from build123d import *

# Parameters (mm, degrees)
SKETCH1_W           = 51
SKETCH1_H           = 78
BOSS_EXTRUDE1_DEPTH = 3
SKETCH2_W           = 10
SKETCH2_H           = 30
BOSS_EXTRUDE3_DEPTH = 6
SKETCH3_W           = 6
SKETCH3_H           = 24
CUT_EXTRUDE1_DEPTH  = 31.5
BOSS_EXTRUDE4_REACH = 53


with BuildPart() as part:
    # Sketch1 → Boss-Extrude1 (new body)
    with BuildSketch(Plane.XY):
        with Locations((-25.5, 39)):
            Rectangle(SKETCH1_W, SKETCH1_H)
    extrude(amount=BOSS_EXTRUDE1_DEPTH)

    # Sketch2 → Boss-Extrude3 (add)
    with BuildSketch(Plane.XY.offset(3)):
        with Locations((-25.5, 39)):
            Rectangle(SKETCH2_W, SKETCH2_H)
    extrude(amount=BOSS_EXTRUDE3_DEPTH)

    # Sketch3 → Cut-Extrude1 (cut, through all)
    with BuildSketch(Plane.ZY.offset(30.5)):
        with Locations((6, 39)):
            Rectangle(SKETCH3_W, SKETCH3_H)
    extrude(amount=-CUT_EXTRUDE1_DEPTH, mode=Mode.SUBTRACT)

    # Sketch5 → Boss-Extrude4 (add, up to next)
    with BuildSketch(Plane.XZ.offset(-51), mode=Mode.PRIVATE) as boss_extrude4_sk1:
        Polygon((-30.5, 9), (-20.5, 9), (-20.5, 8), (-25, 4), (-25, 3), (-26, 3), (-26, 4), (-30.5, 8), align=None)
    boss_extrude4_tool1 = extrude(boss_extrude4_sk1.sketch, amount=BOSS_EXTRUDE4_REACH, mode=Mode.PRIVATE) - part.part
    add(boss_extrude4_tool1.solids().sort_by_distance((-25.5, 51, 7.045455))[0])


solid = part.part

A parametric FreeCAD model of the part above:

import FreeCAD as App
import Part
import Sketcher

V = App.Vector
Q = App.Units.Quantity

doc = App.newDocument("Part")
body = doc.addObject("PartDesign::Body", "Body")

sketch1 = body.newObject("Sketcher::SketchObject", "Sketch")
sketch1.AttachmentSupport = (doc.getObject("XY_Plane"), [""])
sketch1.MapMode = "FlatFace"
sketch1.addGeometry([
    Part.LineSegment(V(-51, 78, 0), V(-51, 0, 0)),
    Part.LineSegment(V(-51, 0, 0), V(0, 0, 0)),
    Part.LineSegment(V(0, 0, 0), V(0, 78, 0)),
    Part.LineSegment(V(0, 78, 0), V(-51, 78, 0)),
], False)
sketch1.addConstraint([
    Sketcher.Constraint("Coincident", 0, 2, 1, 1),
    Sketcher.Constraint("Coincident", 1, 2, 2, 1),
    Sketcher.Constraint("Coincident", 2, 2, 3, 1),
    Sketcher.Constraint("Coincident", 3, 2, 0, 1),
    Sketcher.Constraint("Vertical", 0),
    Sketcher.Constraint("Horizontal", 1),
    Sketcher.Constraint("Vertical", 2),
    Sketcher.Constraint("Horizontal", 3),
    Sketcher.Constraint("Coincident", 1, 2, -1, 1),
    Sketcher.Constraint("DistanceX", 1, 1, 1, 2, Q("51 mm")),
    Sketcher.Constraint("DistanceY", 0, 2, 0, 1, Q("78 mm")),
])
pad1 = body.newObject("PartDesign::Pad", "Pad")
pad1.Profile = sketch1
pad1.Length = 3

sketch2 = body.newObject("Sketcher::SketchObject", "Sketch001")
sketch2.AttachmentSupport = (doc.getObject("XY_Plane"), [""])
sketch2.MapMode = "FlatFace"
sketch2.AttachmentOffset = App.Placement(V(0, 0, 3), App.Rotation())
sketch2.addGeometry([
    Part.LineSegment(V(-30, 54, 0), V(-30, 24, 0)),
    Part.LineSegment(V(-30, 24, 0), V(-20, 24, 0)),
    Part.LineSegment(V(-20, 24, 0), V(-20, 54, 0)),
    Part.LineSegment(V(-20, 54, 0), V(-30, 54, 0)),
], False)
sketch2.addConstraint([
    Sketcher.Constraint("Coincident", 0, 2, 1, 1),
    Sketcher.Constraint("Coincident", 1, 2, 2, 1),
    Sketcher.Constraint("Coincident", 2, 2, 3, 1),
    Sketcher.Constraint("Coincident", 3, 2, 0, 1),
    Sketcher.Constraint("Vertical", 0),
    Sketcher.Constraint("Horizontal", 1),
    Sketcher.Constraint("Vertical", 2),
    Sketcher.Constraint("Horizontal", 3),
    Sketcher.Constraint("DistanceX", 1, 1, 1, 2, Q("10 mm")),
    Sketcher.Constraint("DistanceY", 0, 2, 0, 1, Q("30 mm")),
    Sketcher.Constraint("DistanceY", -1, 1, 0, 2, Q("24 mm")),
    Sketcher.Constraint("DistanceX", 0, 2, -1, 1, Q("30.5 mm")),
])
pad2 = body.newObject("PartDesign::Pad", "Pad001")
pad2.Profile = sketch2
pad2.Length = 6

sketch3 = body.newObject("Sketcher::SketchObject", "Sketch002")
sketch3.AttachmentSupport = (doc.getObject("YZ_Plane"), [""])
sketch3.MapMode = "FlatFace"
sketch3.AttachmentOffset = App.Placement(V(0, 0, -30.5), App.Rotation())
sketch3.addGeometry([
    Part.LineSegment(V(51, 3, 0), V(27, 3, 0)),
    Part.LineSegment(V(27, 3, 0), V(27, 9, 0)),
    Part.LineSegment(V(27, 9, 0), V(51, 9, 0)),
    Part.LineSegment(V(51, 9, 0), V(51, 3, 0)),
], False)
sketch3.addConstraint([
    Sketcher.Constraint("Coincident", 0, 2, 1, 1),
    Sketcher.Constraint("Coincident", 1, 2, 2, 1),
    Sketcher.Constraint("Coincident", 2, 2, 3, 1),
    Sketcher.Constraint("Coincident", 3, 2, 0, 1),
    Sketcher.Constraint("Horizontal", 0),
    Sketcher.Constraint("Vertical", 1),
    Sketcher.Constraint("Horizontal", 2),
    Sketcher.Constraint("Vertical", 3),
    Sketcher.Constraint("DistanceX", 0, 2, 0, 1, Q("24 mm")),
    Sketcher.Constraint("DistanceY", 1, 1, 1, 2, Q("6 mm")),
    Sketcher.Constraint("DistanceX", -1, 1, 0, 2, Q("27 mm")),
    Sketcher.Constraint("DistanceY", -1, 1, 0, 2, Q("3 mm")),
])
pocket1 = body.newObject("PartDesign::Pocket", "Pocket")
pocket1.Profile = sketch3
pocket1.Type = "ThroughAll"
pocket1.Reversed = True

sketch4 = body.newObject("Sketcher::SketchObject", "Sketch003")
sketch4.AttachmentSupport = (doc.getObject("XZ_Plane"), [""])
sketch4.MapMode = "FlatFace"
sketch4.AttachmentOffset = App.Placement(V(0, 0, -51), App.Rotation())
sketch4.addGeometry([
    Part.LineSegment(V(-20.5, 9, 0), V(-30.5, 9, 0)),
    Part.LineSegment(V(-30.5, 9, 0), V(-30.5, 8, 0)),
    Part.LineSegment(V(-30.5, 8, 0), V(-26, 4, 0)),
    Part.LineSegment(V(-26, 4, 0), V(-26, 3, 0)),
    Part.LineSegment(V(-26, 3, 0), V(-25, 3, 0)),
    Part.LineSegment(V(-25, 3, 0), V(-25, 4, 0)),
    Part.LineSegment(V(-25, 4, 0), V(-20.5, 8, 0)),
    Part.LineSegment(V(-20.5, 8, 0), V(-20.5, 9, 0)),
], False)
sketch4.addConstraint([
    Sketcher.Constraint("Coincident", 0, 2, 1, 1),
    Sketcher.Constraint("Coincident", 1, 2, 2, 1),
    Sketcher.Constraint("Coincident", 2, 2, 3, 1),
    Sketcher.Constraint("Coincident", 3, 2, 4, 1),
    Sketcher.Constraint("Coincident", 4, 2, 5, 1),
    Sketcher.Constraint("Coincident", 5, 2, 6, 1),
    Sketcher.Constraint("Coincident", 6, 2, 7, 1),
    Sketcher.Constraint("Coincident", 7, 2, 0, 1),
    Sketcher.Constraint("Horizontal", 0),
    Sketcher.Constraint("Vertical", 1),
    Sketcher.Constraint("Vertical", 3),
    Sketcher.Constraint("Horizontal", 4),
    Sketcher.Constraint("Vertical", 5),
    Sketcher.Constraint("Vertical", 7),
    Sketcher.Constraint("Horizontal", 2, 2, 5, 2),
    Sketcher.Constraint("Horizontal", 1, 2, 6, 2),
    Sketcher.Constraint("Equal", 4, 1),
    Sketcher.Constraint("Equal", 1, 3),
    Sketcher.Constraint("Equal", 2, 6),
    Sketcher.Constraint("DistanceX", 0, 2, 0, 1, Q("10 mm")),
    Sketcher.Constraint("DistanceX", 4, 1, 4, 2, Q("1 mm")),
    Sketcher.Constraint("DistanceY", -1, 1, 0, 2, Q("9 mm")),
    Sketcher.Constraint("DistanceX", 2, 2, -1, 1, Q("26 mm")),
    Sketcher.Constraint("DistanceY", -1, 1, 2, 2, Q("4 mm")),
])
pad3 = body.newObject("PartDesign::Pad", "Pad002")
pad3.Profile = sketch4
pad3.Type = "UpToFirst"

doc.recompute()
